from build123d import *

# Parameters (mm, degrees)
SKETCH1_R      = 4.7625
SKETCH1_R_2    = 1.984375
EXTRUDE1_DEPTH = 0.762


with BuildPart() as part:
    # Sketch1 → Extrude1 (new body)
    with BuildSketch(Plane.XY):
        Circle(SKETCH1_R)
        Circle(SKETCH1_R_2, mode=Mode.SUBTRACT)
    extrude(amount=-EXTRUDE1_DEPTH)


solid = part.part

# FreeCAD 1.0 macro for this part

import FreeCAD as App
import Part
import Sketcher
Q = App.Units.Quantity

doc = App.newDocument("Part")
body = doc.addObject("PartDesign::Body", "Body")

sketch1 = body.newObject("Sketcher::SketchObject", "Sketch")
sketch1.AttachmentSupport = (doc.getObject("XY_Plane"), [""])
sketch1.MapMode = "FlatFace"
sketch1.addGeometry(Part.Circle(App.Vector(0, 0, 0), App.Vector(0, 0, 1), 4.8), False)
sketch1.addGeometry(Part.Circle(App.Vector(0, 0, 0), App.Vector(0, 0, 1), 2), False)
sketch1.addConstraint(Sketcher.Constraint("Coincident", 0, 3, -1, 1))
sketch1.addConstraint(Sketcher.Constraint("Coincident", 1, 3, -1, 1))
sketch1.addConstraint(Sketcher.Constraint("Diameter", 0, Q("0.375 in")))
sketch1.addConstraint(Sketcher.Constraint("Diameter", 1, Q("0.15625 in")))
pad1 = body.newObject("PartDesign::Pad", "Pad")
pad1.Profile = sketch1
pad1.Length = Q("0.03 in")
pad1.Reversed = True

doc.recompute()
